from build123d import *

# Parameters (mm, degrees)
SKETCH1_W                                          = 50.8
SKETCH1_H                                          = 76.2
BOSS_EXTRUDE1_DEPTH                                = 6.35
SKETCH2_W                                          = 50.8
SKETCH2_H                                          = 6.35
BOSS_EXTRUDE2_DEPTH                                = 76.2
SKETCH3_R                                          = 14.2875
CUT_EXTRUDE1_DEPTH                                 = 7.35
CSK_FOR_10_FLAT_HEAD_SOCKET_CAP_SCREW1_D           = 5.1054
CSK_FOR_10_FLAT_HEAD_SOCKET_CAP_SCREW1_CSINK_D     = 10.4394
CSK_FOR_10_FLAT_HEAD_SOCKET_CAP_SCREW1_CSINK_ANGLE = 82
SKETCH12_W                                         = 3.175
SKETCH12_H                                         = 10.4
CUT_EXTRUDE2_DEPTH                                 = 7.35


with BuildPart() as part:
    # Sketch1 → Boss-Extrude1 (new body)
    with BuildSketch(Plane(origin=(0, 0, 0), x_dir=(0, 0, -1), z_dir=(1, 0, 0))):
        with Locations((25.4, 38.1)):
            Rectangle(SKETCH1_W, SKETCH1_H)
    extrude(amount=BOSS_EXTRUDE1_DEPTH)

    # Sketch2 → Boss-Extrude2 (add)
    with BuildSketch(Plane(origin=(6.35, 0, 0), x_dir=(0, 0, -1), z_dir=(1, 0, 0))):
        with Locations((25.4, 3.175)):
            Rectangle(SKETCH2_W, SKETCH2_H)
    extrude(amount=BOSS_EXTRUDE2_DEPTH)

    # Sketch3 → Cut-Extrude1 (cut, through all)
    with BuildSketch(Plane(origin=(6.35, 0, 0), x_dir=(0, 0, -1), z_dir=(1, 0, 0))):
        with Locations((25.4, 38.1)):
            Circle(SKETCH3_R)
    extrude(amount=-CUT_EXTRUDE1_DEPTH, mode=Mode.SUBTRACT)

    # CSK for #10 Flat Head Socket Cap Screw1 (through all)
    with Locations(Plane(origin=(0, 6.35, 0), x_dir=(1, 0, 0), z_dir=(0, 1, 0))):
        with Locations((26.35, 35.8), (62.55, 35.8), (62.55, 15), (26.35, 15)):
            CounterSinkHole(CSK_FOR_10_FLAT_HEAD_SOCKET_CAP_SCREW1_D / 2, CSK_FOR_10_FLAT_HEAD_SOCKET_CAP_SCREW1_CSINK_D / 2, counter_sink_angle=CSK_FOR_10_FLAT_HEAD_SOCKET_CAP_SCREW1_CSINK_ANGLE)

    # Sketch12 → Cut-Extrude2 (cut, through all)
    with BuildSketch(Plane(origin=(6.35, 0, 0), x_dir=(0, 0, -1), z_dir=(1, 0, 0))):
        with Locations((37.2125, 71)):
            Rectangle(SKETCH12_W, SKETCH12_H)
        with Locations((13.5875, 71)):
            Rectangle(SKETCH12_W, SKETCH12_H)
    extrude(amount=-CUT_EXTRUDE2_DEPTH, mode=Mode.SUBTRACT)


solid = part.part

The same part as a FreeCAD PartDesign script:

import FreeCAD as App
import Part
import Sketcher
Q = App.Units.Quantity


def add_polygon(sketch, points):
    """Adds a closed chain of lines whose ends are joined by coincident constraints."""
    first, n = sketch.GeometryCount, len(points)
    for a, b in zip(points, points[1:] + points[:1]):
        sketch.addGeometry(Part.LineSegment(App.Vector(*a, 0), App.Vector(*b, 0)), False)
    for i in range(n):
        sketch.addConstraint(Sketcher.Constraint("Coincident", first + i, 2, first + (i + 1) % n, 1))

doc = App.newDocument("Part")
body = doc.addObject("PartDesign::Body", "Body")

sketch1 = doc.addObject("Sketcher::SketchObject", "Sketch")
body.addObject(sketch1)
sketch1.AttachmentSupport = (doc.YZ_Plane, [""])
sketch1.MapMode = "FlatFace"
add_polygon(sketch1, [(76, 0), (0, 0), (0, -51), (76, -51)])
sketch1.addConstraint([
    Sketcher.Constraint("Horizontal", 0),
    Sketcher.Constraint("Vertical", 1),
    Sketcher.Constraint("Horizontal", 2),
    Sketcher.Constraint("Vertical", 3),
    Sketcher.Constraint("Coincident", 0, 2, -1, 1),
    Sketcher.Constraint("DistanceX", 0, 2, 0, 1, Q("3 in")),
    Sketcher.Constraint("DistanceY", 1, 2, 1, 1, Q("2 in")),
])
pad1 = doc.addObject("PartDesign::Pad", "Pad")
body.addObject(pad1)
pad1.Profile = sketch1
pad1.Length = Q("0.25 in")

sketch2 = doc.addObject("Sketcher::SketchObject", "Sketch001")
body.addObject(sketch2)
sketch2.AttachmentSupport = (doc.YZ_Plane, [""])
sketch2.MapMode = "FlatFace"
sketch2.AttachmentOffset = App.Placement(App.Vector(0, 0, 0.25 * 25.4), App.Rotation())
add_polygon(sketch2, [(6, 0), (0, 0), (0, -51), (6, -51)])
sketch2.addConstraint([
    Sketcher.Constraint("Horizontal", 0),
    Sketcher.Constraint("Vertical", 1),
    Sketcher.Constraint("Horizontal", 2),
    Sketcher.Constraint("Vertical", 3),
    Sketcher.Constraint("Coincident", 0, 2, -1, 1),
    Sketcher.Constraint("DistanceY", 1, 2, 1, 1, Q("2 in")),
    Sketcher.Constraint("DistanceX", 0, 2, 0, 1, Q("0.25 in")),
])
pad2 = doc.addObject("PartDesign::Pad", "Pad001")
body.addObject(pad2)
pad2.Profile = sketch2
pad2.Length = Q("3 in")

sketch3 = doc.addObject("Sketcher::SketchObject", "Sketch002")
body.addObject(sketch3)
sketch3.AttachmentSupport = (doc.YZ_Plane, [""])
sketch3.MapMode = "FlatFace"
sketch3.AttachmentOffset = App.Placement(App.Vector(0, 0, 0.25 * 25.4), App.Rotation())
sketch3.addGeometry(Part.Circle(App.Vector(38, -25, 0), App.Vector(0, 0, 1), 14), False)
sketch3.addConstraint([
    Sketcher.Constraint("Diameter", 0, Q("1.125 in")),
    Sketcher.Constraint("DistanceY", 0, 3, -1, 1, Q("1 in")),
    Sketcher.Constraint("DistanceX", -1, 1, 0, 3, Q("1.5 in")),
])
pocket1 = doc.addObject("PartDesign::Pocket", "Pocket")
body.addObject(pocket1)
pocket1.Profile = sketch3
pocket1.Type = "ThroughAll"

sketch4 = doc.addObject("Sketcher::SketchObject", "Sketch003")
body.addObject(sketch4)
sketch4.AttachmentSupport = (doc.XZ_Plane, [""])
sketch4.MapMode = "FlatFace"
sketch4.AttachmentOffset = App.Placement(App.Vector(0, 0, -0.25 * 25.4), App.Rotation())
sketch4.addGeometry([
    Part.Circle(App.Vector(26.4, -35.8, 0), App.Vector(0, 0, 1), 2.6),
    Part.Circle(App.Vector(62.5, -35.8, 0), App.Vector(0, 0, 1), 2.6),
    Part.Circle(App.Vector(62.5, -15, 0), App.Vector(0, 0, 1), 2.6),
    Part.Circle(App.Vector(26.4, -15, 0), App.Vector(0, 0, 1), 2.6),
], False)
sketch4.addConstraint([
    Sketcher.Constraint("Equal", 0, 1),
    Sketcher.Constraint("Equal", 1, 2),
    Sketcher.Constraint("Equal", 2, 3),
    Sketcher.Constraint("Horizontal", 0, 3, 1, 3),
    Sketcher.Constraint("Horizontal", 2, 3, 3, 3),
    Sketcher.Constraint("Vertical", 1, 3, 2, 3),
    Sketcher.Constraint("Vertical", 0, 3, 3, 3),
    Sketcher.Constraint("Diameter", 0, Q("0.201 in")),
    Sketcher.Constraint("DistanceX", -1, 1, 0, 3, Q("26.35 mm")),
    Sketcher.Constraint("DistanceY", 0, 3, -1, 1, Q("35.8 mm")),
    Sketcher.Constraint("DistanceX", -1, 1, 1, 3, Q("62.55 mm")),
    Sketcher.Constraint("DistanceY", 2, 3, -1, 1, Q("15 mm")),
])
doc.recompute()
hole = doc.addObject("PartDesign::Hole", "Hole")
body.addObject(hole)
hole.Profile = sketch4
hole.ThreadType = "None"
hole.Diameter = Q("0.201 in")
hole.DepthType = "ThroughAll"
hole.HoleCutType = "Countersink"
hole.HoleCutDiameter = Q("0.411 in")
hole.HoleCutCountersinkAngle = 82
hole.Reversed = True

sketch5 = doc.addObject("Sketcher::SketchObject", "Sketch004")
body.addObject(sketch5)
sketch5.AttachmentSupport = (doc.YZ_Plane, [""])
sketch5.MapMode = "FlatFace"
sketch5.AttachmentOffset = App.Placement(App.Vector(0, 0, 0.25 * 25.4), App.Rotation())
add_polygon(sketch5, [(76.2, -35.6), (65.8, -35.6), (65.8, -38.8), (76.2, -38.8)])
add_polygon(sketch5, [(76.2, -12), (65.8, -12), (65.8, -15.2), (76.2, -15.2)])
sketch5.addConstraint([
    Sketcher.Constraint("Horizontal", 0),
    Sketcher.Constraint("Vertical", 1),
    Sketcher.Constraint("Horizontal", 2),
    Sketcher.Constraint("Vertical", 3),
    Sketcher.Constraint("Horizontal", 4),
    Sketcher.Constraint("Vertical", 5),
    Sketcher.Constraint("Horizontal", 6),
    Sketcher.Constraint("Vertical", 7),
    Sketcher.Constraint("Vertical", 1, 2, 4, 2),
    Sketcher.Constraint("Vertical", 3, 2, 6, 2),
    Sketcher.Constraint("Equal", 3, 5),
    Sketcher.Constraint("DistanceX", -1, 1, 2, 2, Q("3 in")),
    Sketcher.Constraint("DistanceY", 1, 2, 1, 1, Q("0.125 in")),
    Sketcher.Constraint("DistanceX", 0, 2, 0, 1, Q("10.4 mm")),
    Sketcher.Constraint("DistanceY", 0, 2, -1, 1, Q("35.625 mm")),
    Sketcher.Constraint("DistanceY", 4, 2, -1, 1, Q("12 mm")),
])
pocket2 = doc.addObject("PartDesign::Pocket", "Pocket001")
body.addObject(pocket2)
pocket2.Profile = sketch5
pocket2.Type = "ThroughAll"

doc.recompute()
